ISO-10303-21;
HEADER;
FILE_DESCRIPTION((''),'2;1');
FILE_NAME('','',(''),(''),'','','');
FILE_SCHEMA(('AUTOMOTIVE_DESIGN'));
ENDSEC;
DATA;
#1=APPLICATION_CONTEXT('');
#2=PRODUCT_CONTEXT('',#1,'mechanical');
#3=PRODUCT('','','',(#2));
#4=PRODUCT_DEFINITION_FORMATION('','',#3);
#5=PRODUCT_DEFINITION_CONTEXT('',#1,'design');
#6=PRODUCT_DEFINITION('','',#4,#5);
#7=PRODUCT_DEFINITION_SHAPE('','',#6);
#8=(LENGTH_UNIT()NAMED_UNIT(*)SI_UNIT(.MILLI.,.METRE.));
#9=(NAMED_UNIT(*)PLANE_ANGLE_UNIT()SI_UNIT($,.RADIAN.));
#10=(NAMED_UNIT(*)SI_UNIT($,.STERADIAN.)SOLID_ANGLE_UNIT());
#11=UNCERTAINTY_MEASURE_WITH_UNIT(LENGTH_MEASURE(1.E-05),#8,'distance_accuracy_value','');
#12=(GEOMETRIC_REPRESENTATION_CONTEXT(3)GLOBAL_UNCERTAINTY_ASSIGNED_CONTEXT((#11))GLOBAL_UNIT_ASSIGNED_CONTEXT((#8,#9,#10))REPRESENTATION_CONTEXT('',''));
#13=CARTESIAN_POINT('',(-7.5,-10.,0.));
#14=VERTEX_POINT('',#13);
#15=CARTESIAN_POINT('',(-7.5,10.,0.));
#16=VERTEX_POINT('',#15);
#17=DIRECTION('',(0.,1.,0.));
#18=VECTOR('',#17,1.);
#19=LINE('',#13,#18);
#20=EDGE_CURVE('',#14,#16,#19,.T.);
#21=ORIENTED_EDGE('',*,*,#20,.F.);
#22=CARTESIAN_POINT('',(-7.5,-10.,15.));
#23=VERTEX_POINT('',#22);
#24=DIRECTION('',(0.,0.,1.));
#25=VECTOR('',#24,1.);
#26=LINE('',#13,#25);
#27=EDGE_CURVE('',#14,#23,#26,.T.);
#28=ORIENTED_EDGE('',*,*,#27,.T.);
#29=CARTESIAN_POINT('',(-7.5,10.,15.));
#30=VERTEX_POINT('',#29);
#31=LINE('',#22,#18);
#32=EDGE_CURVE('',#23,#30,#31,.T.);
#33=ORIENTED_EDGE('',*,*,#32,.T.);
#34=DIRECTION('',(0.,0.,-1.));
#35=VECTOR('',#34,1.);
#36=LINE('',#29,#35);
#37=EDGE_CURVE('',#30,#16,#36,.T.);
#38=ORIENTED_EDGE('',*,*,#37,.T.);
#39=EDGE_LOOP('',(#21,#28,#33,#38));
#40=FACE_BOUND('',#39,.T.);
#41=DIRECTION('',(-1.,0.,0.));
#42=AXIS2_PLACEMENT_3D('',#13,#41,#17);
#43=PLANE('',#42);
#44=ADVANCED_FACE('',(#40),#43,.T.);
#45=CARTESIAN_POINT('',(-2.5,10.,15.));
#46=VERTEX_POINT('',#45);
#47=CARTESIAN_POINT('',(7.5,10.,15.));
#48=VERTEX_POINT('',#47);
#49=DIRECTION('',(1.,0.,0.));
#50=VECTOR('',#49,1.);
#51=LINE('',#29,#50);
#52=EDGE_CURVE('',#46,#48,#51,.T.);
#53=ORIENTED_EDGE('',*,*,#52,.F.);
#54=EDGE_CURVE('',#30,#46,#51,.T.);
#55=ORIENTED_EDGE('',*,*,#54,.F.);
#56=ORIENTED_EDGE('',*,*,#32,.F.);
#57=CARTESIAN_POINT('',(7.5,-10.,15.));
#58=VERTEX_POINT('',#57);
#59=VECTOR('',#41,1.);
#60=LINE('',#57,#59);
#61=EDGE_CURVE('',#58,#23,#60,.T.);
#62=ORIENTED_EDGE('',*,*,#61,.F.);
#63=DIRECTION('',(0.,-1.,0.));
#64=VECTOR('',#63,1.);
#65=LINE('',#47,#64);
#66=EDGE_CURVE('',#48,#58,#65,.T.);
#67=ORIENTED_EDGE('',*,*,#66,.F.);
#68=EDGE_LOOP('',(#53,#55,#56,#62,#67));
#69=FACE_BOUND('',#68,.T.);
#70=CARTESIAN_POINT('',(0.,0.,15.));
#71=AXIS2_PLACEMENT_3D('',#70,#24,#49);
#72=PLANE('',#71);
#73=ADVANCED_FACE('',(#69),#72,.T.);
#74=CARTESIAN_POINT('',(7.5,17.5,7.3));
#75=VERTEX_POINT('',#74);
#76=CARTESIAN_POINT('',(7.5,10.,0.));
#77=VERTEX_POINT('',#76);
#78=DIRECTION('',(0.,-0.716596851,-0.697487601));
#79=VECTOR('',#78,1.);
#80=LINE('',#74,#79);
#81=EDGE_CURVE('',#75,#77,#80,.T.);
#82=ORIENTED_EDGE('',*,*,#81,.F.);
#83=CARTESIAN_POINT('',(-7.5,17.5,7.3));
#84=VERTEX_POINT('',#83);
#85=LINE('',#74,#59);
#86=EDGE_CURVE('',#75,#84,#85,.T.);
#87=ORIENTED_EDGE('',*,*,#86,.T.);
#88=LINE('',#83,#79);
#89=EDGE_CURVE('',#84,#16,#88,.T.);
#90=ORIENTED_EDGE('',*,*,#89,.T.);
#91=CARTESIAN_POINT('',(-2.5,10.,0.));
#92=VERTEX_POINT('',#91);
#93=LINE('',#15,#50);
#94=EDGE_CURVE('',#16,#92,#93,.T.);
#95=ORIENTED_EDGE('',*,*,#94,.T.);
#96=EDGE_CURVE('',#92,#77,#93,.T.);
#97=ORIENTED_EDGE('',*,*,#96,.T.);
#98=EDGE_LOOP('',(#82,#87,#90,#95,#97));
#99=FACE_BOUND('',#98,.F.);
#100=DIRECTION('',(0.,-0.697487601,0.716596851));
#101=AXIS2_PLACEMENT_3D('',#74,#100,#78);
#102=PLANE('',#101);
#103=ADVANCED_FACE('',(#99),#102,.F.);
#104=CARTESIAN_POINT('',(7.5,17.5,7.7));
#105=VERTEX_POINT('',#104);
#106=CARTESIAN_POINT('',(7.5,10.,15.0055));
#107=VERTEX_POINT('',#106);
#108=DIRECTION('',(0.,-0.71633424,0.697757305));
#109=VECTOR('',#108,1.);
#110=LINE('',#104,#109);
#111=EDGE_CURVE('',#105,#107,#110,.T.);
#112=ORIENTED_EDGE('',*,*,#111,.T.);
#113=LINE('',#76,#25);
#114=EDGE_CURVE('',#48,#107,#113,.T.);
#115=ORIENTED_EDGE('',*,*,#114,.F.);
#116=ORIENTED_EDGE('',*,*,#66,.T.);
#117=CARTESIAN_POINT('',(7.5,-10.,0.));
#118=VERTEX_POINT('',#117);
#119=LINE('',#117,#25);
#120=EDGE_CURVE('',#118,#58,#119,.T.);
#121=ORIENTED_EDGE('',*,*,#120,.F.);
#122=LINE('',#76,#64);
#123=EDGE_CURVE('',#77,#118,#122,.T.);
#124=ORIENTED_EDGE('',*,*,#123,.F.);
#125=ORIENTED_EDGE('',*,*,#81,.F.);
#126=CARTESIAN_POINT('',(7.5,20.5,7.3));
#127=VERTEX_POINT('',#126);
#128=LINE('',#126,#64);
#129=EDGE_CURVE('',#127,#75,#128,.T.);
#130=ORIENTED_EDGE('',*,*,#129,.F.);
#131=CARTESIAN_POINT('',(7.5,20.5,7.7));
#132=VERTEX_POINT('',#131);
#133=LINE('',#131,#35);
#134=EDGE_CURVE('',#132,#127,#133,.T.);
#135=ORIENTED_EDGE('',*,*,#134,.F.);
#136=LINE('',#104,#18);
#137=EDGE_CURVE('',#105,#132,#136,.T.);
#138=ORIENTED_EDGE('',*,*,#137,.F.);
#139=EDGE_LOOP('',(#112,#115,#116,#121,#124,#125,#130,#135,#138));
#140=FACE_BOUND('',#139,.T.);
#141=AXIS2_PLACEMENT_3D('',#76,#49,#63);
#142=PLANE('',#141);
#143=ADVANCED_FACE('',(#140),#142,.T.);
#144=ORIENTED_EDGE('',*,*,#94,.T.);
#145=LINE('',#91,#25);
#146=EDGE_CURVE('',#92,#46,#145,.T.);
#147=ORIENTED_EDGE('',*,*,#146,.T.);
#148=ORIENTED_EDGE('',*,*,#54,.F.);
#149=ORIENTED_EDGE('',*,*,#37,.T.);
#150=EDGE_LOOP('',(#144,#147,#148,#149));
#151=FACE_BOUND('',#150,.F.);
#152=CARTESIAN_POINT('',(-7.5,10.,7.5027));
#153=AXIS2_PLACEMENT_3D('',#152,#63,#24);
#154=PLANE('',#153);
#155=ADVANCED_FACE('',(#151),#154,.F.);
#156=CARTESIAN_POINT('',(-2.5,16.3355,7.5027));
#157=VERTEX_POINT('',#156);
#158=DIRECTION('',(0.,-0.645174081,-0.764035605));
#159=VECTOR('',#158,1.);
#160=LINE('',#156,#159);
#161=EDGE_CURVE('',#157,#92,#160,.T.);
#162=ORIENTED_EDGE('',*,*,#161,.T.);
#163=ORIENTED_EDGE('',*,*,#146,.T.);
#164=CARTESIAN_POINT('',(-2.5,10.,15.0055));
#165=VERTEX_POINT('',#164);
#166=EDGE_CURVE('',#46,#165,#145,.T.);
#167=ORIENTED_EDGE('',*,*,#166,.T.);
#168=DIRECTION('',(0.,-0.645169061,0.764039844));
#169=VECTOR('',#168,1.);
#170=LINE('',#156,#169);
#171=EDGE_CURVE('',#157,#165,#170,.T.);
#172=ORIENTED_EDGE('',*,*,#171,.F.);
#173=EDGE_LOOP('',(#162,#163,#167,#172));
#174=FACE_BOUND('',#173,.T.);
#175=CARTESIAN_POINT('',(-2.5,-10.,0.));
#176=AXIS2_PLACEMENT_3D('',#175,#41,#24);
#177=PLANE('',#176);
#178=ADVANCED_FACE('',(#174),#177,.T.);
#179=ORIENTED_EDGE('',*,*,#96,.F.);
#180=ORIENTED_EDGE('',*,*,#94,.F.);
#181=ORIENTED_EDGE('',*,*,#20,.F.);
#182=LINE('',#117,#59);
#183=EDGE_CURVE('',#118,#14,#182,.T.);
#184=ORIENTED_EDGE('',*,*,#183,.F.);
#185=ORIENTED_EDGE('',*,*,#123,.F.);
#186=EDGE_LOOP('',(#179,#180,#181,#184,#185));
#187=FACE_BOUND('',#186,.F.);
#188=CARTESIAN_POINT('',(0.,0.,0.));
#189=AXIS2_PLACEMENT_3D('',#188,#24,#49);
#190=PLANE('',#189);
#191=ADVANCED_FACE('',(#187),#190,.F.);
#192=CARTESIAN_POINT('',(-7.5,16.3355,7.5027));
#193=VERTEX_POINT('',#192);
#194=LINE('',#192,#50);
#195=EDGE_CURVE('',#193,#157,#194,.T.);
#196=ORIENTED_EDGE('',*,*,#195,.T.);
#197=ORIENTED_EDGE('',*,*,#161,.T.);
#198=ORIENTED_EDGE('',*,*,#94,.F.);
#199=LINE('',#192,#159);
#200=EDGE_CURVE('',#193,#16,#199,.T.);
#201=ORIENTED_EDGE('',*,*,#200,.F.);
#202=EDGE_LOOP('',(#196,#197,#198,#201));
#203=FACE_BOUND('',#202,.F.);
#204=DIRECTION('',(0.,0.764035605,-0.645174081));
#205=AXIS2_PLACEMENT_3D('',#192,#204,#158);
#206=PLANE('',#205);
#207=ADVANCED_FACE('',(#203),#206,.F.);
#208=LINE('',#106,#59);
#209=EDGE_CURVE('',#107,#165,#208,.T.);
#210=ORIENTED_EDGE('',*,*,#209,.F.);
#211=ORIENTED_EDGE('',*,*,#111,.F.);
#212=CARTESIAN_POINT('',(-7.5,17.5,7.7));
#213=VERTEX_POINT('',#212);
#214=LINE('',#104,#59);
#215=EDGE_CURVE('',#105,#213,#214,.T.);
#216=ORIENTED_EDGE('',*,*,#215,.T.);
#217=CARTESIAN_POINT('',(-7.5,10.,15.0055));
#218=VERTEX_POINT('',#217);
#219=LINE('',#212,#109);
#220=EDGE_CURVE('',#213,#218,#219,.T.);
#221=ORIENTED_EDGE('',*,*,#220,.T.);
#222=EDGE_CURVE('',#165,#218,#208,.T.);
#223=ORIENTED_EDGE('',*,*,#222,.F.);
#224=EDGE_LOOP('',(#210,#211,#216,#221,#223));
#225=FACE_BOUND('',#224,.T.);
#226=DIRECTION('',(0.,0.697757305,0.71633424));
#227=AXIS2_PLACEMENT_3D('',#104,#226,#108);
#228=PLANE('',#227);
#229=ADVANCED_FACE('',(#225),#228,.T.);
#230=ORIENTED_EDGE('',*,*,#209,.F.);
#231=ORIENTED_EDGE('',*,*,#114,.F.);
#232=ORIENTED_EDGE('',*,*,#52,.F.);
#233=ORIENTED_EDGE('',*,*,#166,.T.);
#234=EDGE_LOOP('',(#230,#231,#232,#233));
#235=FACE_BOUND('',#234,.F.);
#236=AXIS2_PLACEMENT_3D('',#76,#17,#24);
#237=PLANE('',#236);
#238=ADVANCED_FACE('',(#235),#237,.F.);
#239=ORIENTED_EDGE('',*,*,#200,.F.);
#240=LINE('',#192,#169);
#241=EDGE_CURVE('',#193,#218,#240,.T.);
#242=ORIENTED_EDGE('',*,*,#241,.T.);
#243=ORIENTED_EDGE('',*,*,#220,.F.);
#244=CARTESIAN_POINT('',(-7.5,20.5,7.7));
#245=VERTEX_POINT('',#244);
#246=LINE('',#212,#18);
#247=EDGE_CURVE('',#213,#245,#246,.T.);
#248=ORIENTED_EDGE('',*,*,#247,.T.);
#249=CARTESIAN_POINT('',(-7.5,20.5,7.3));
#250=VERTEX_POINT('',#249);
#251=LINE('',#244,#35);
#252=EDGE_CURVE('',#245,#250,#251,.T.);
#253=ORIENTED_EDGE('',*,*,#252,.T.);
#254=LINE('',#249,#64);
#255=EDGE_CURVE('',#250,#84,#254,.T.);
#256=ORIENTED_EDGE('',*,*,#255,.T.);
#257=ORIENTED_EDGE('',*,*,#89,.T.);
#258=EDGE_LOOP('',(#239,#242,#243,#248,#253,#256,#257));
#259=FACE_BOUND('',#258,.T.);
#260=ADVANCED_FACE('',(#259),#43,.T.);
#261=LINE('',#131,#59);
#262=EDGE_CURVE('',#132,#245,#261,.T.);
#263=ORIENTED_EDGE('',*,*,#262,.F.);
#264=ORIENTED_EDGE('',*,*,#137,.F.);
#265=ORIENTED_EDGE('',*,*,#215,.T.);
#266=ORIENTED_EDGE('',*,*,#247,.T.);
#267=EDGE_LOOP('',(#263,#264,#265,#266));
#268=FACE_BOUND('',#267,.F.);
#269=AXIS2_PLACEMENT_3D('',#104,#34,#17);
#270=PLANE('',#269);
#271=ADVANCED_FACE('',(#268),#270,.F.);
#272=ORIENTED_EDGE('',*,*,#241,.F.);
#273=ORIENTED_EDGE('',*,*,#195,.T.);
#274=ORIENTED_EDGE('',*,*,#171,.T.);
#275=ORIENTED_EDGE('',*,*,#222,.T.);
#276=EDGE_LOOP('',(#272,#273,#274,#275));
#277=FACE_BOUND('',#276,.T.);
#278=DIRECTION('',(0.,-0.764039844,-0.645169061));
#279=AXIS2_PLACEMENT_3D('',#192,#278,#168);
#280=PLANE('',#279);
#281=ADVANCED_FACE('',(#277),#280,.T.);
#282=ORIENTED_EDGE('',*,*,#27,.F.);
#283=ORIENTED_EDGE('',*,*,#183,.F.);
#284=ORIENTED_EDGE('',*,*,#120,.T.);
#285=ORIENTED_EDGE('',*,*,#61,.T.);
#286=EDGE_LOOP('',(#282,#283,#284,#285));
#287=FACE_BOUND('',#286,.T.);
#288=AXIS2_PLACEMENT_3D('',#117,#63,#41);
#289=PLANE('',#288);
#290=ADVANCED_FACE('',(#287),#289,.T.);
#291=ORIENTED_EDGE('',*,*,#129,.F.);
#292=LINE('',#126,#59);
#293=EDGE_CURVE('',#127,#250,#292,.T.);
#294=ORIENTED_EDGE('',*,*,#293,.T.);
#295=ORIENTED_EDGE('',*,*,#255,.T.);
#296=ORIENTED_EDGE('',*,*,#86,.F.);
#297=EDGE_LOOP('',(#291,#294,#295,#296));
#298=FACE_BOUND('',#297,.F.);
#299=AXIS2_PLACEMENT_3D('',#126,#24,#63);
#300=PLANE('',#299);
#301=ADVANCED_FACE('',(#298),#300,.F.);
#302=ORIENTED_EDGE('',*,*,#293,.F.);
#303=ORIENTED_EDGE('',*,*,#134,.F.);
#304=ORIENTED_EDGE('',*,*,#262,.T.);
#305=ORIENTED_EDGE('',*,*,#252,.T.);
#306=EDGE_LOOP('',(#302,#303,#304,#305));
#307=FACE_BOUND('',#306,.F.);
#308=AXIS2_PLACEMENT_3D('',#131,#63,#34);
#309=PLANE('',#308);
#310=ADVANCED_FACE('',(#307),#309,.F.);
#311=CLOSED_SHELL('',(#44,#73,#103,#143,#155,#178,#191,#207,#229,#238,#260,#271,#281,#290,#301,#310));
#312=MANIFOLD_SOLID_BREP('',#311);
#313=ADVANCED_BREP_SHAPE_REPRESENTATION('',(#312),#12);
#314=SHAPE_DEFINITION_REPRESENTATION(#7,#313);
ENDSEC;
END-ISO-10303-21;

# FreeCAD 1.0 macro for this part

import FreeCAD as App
import Part
import Sketcher
from FreeCAD import Vector


def add_polygon(sketch, points):
    """Adds a closed chain of lines whose ends are joined by coincident constraints."""
    first, n = sketch.GeometryCount, len(points)
    for a, b in zip(points, points[1:] + points[:1]):
        sketch.addGeometry(Part.LineSegment(App.Vector(*a, 0), App.Vector(*b, 0)), False)
    for i in range(n):
        sketch.addConstraint(Sketcher.Constraint("Coincident", first + i, 2, first + (i + 1) % n, 1))

doc = App.newDocument("Part")
params = doc.addObject("Spreadsheet::Sheet", "Params")
for row, (alias, value) in enumerate([
    ("sketch1_width", "15 mm"),
    ("sketch1_height", "20 mm"),
    ("pad1_length", "15 mm"),
    ("sketch2_width", "3 mm"),
    ("sketch2_height", "0.4 mm"),
    ("sketch2_length", "10.47 mm"),
    ("pad2_length", "15 mm"),
    ("sketch3_length", "9.82 mm"),
    ("pocket1_length", "5 mm"),
], start=1):
    params.set(f"A{row}", alias)
    params.set(f"B{row}", "=" + value)
    params.setAlias(f"B{row}", alias)

body = doc.addObject("PartDesign::Body", "Body")

# Sketch on XY plane
sketch1 = body.newObject("Sketcher::SketchObject", "Sketch")
sketch1.AttachmentSupport = (doc.getObject("XY_Plane"), [""])
sketch1.MapMode = "FlatFace"
add_polygon(sketch1, [(8, 10), (-8, 10), (-8, -10), (8, -10)])  # lines 0-3
sketch1.addConstraint(Sketcher.Constraint("Horizontal", 0))
sketch1.addConstraint(Sketcher.Constraint("Vertical", 1))
sketch1.addConstraint(Sketcher.Constraint("Horizontal", 2))
sketch1.addConstraint(Sketcher.Constraint("Vertical", 3))
sketch1.addConstraint(Sketcher.Constraint("Symmetric", 0, 2, 2, 2, -1, 1))
sketch1.addConstraint(Sketcher.Constraint("DistanceX", 0, 2, 0, 1, 15.0))
sketch1.addConstraint(Sketcher.Constraint("DistanceY", 1, 2, 1, 1, 20.0))
sketch1.setExpression("Constraints[9]", "Params.sketch1_width")
sketch1.setExpression("Constraints[10]", "Params.sketch1_height")
pad1 = body.newObject("PartDesign::Pad", "Pad")
pad1.Profile = sketch1
pad1.setExpression("Length", "Params.pad1_length")

# Sketch on YZ plane
sketch2 = body.newObject("Sketcher::SketchObject", "Sketch001")
sketch2.AttachmentSupport = (doc.getObject("YZ_Plane"), [""])
sketch2.MapMode = "FlatFace"
sketch2.AttachmentOffset = App.Placement(Vector(0, 0, 7.5), App.Rotation())
add_polygon(sketch2, [(10, 0), (17.5, 7.3), (20.5, 7.3), (20.5, 7.7), (17.5, 7.7), (10, 15.01)])  # lines 0-5
sketch2.addConstraint(Sketcher.Constraint("Horizontal", 1))
sketch2.addConstraint(Sketcher.Constraint("Vertical", 2))
sketch2.addConstraint(Sketcher.Constraint("Horizontal", 3))
sketch2.addConstraint(Sketcher.Constraint("Vertical", 5))
sketch2.addConstraint(Sketcher.Constraint("PointOnObject", 5, 2, -1))
sketch2.addConstraint(Sketcher.Constraint("Vertical", 0, 2, 3, 2))
sketch2.addConstraint(Sketcher.Constraint("DistanceX", 1, 1, 1, 2, 3.0))
sketch2.addConstraint(Sketcher.Constraint("DistanceX", 4, 2, 3, 2, 7.5))
sketch2.addConstraint(Sketcher.Constraint("DistanceY", 2, 1, 2, 2, 0.4))
sketch2.addConstraint(Sketcher.Constraint("DistanceX", -1, 1, 4, 2, 10.0))
sketch2.addConstraint(Sketcher.Constraint("DistanceY", -1, 1, 0, 2, 7.3))
sketch2.addConstraint(Sketcher.Constraint("Distance", 4, 10.47))
sketch2.setExpression("Constraints[12]", "Params.sketch2_width")
sketch2.setExpression("Constraints[14]", "Params.sketch2_height")
sketch2.setExpression("Constraints[17]", "Params.sketch2_length")
pad2 = body.newObject("PartDesign::Pad", "Pad001")
pad2.Profile = sketch2
pad2.setExpression("Length", "Params.pad2_length")
pad2.Reversed = True

# Sketch on YZ plane
sketch3 = body.newObject("Sketcher::SketchObject", "Sketch002")
sketch3.AttachmentSupport = (doc.getObject("YZ_Plane"), [""])
sketch3.MapMode = "FlatFace"
sketch3.AttachmentOffset = App.Placement(Vector(0, 0, -7.5), App.Rotation())
add_polygon(sketch3, [(16, 8), (10, 0), (10, 15)])  # lines 0-2
sketch3.addConstraint(Sketcher.Constraint("Vertical", 1))
sketch3.addConstraint(Sketcher.Constraint("PointOnObject", 0, 2, -1))
sketch3.addConstraint(Sketcher.Constraint("Equal", 0, 2))
sketch3.addConstraint(Sketcher.Constraint("DistanceX", -1, 1, 0, 2, 10.0))
sketch3.addConstraint(Sketcher.Constraint("Distance", 2, 9.82))
sketch3.addConstraint(Sketcher.Constraint("DistanceY", 1, 1, 1, 2, 15.0055))
sketch3.setExpression("Constraints[7]", "Params.sketch3_length")
pocket1 = body.newObject("PartDesign::Pocket", "Pocket")
pocket1.Profile = sketch3
pocket1.setExpression("Length", "Params.pocket1_length")
pocket1.Reversed = True

doc.recompute()
